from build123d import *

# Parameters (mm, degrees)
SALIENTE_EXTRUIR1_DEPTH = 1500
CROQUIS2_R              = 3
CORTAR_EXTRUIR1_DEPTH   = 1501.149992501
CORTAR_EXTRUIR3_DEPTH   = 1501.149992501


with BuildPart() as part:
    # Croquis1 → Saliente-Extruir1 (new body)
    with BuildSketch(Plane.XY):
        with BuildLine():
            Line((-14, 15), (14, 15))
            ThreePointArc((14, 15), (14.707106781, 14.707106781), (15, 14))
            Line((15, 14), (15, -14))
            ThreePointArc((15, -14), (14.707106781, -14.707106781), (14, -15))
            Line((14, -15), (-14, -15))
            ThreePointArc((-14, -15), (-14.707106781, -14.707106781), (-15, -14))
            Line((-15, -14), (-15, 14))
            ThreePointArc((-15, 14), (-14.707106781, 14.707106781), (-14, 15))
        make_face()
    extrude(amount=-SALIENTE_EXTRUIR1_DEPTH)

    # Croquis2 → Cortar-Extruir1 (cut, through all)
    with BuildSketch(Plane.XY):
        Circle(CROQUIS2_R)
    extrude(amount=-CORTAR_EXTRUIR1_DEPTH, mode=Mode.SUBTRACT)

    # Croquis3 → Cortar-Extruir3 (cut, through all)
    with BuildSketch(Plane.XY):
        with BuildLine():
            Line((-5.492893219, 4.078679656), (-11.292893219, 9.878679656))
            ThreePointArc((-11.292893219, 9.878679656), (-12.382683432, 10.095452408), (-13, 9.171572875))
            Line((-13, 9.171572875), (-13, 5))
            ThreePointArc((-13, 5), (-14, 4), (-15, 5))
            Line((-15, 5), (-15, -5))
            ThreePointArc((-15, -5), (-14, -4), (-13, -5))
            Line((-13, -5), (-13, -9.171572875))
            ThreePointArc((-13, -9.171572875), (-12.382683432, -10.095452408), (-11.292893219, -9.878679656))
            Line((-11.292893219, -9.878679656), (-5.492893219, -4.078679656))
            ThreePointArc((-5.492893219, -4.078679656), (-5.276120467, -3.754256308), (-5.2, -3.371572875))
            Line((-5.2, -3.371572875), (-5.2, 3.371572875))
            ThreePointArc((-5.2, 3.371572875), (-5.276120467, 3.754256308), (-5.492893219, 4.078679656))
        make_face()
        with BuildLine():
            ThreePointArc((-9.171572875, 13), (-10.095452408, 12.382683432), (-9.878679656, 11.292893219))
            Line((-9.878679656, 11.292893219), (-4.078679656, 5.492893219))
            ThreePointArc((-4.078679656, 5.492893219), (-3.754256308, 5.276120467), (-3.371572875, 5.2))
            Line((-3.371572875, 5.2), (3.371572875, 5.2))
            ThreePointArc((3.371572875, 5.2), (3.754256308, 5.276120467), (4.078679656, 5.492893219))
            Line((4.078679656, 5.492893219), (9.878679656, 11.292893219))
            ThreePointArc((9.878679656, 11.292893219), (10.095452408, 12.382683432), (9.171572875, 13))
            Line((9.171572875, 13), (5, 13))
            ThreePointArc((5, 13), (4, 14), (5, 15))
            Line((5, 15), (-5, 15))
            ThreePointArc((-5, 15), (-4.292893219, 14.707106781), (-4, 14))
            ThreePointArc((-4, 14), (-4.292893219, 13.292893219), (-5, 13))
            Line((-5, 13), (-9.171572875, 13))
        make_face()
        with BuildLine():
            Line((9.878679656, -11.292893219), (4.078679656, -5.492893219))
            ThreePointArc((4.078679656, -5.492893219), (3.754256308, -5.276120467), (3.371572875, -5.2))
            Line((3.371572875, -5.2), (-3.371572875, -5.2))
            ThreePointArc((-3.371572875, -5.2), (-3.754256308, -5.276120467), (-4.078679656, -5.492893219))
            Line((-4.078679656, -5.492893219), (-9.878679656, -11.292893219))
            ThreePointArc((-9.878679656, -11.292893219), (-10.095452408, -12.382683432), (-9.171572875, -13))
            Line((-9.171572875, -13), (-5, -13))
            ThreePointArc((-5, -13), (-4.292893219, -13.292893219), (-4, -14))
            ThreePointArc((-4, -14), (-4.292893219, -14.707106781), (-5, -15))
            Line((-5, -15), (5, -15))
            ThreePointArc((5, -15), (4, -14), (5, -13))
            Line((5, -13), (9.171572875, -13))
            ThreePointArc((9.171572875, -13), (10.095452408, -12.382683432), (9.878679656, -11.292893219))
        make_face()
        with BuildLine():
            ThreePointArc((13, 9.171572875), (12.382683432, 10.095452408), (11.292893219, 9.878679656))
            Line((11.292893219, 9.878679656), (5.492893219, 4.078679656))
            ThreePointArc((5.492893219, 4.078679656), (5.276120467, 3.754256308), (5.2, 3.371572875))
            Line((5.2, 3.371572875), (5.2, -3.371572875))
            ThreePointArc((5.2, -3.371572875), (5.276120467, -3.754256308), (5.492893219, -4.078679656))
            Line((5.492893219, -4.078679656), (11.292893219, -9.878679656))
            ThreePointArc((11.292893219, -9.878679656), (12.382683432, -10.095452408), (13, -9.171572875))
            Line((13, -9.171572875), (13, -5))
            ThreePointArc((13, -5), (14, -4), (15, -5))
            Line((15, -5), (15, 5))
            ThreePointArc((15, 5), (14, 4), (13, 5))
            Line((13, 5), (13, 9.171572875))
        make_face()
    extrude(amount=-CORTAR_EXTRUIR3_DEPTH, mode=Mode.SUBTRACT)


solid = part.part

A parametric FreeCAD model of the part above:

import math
import FreeCAD as App
import Part
import Sketcher

V = App.Vector
Q = App.Units.Quantity

doc = App.newDocument("Part")
body = doc.addObject("PartDesign::Body", "Body")

sketch1 = body.newObject("Sketcher::SketchObject", "Sketch")
sketch1.AttachmentSupport = (doc.getObject("XY_Plane"), [""])
sketch1.MapMode = "FlatFace"
sketch1.addGeometry([
    Part.LineSegment(V(14, 15, 0), V(-14, 15, 0)),
    Part.ArcOfCircle(Part.Circle(V(-14, 14, 0), V(0, 0, 1), 1), math.radians(90), math.radians(180)),
    Part.LineSegment(V(-15, 14, 0), V(-15, -14, 0)),
    Part.ArcOfCircle(Part.Circle(V(-14, -14, 0), V(0, 0, 1), 1), math.radians(-180), math.radians(-90)),
    Part.LineSegment(V(-14, -15, 0), V(14, -15, 0)),
    Part.ArcOfCircle(Part.Circle(V(14, -14, 0), V(0, 0, 1), 1), math.radians(-90), math.radians(0)),
    Part.LineSegment(V(15, -14, 0), V(15, 14, 0)),
    Part.ArcOfCircle(Part.Circle(V(14, 14, 0), V(0, 0, 1), 1), math.radians(0), math.radians(90)),
], False)
sketch1.addConstraint([
    Sketcher.Constraint("Tangent", 0, 2, 1, 1),
    Sketcher.Constraint("Tangent", 1, 2, 2, 1),
    Sketcher.Constraint("Tangent", 2, 2, 3, 1),
    Sketcher.Constraint("Tangent", 3, 2, 4, 1),
    Sketcher.Constraint("Tangent", 4, 2, 5, 1),
    Sketcher.Constraint("Tangent", 5, 2, 6, 1),
    Sketcher.Constraint("Tangent", 6, 2, 7, 1),
    Sketcher.Constraint("Tangent", 7, 2, 0, 1),
    Sketcher.Constraint("Horizontal", 0),
    Sketcher.Constraint("Vertical", 2),
    Sketcher.Constraint("Horizontal", 4),
    Sketcher.Constraint("Vertical", 6),
    Sketcher.Constraint("Equal", 1, 3),
    Sketcher.Constraint("Equal", 3, 5),
    Sketcher.Constraint("Equal", 5, 7),
    Sketcher.Constraint("Symmetric", 1, 3, 5, 3, -1, 1),
    Sketcher.Constraint("Equal", 4, 2),
    Sketcher.Constraint("Radius", 1, Q("1 mm")),
    Sketcher.Constraint("DistanceX", 0, 2, 0, 1, Q("28 mm")),
])
pad1 = body.newObject("PartDesign::Pad", "Pad")
pad1.Profile = sketch1
pad1.Length = 1500
pad1.Reversed = True

sketch2 = body.newObject("Sketcher::SketchObject", "Sketch001")
sketch2.AttachmentSupport = (doc.getObject("XY_Plane"), [""])
sketch2.MapMode = "FlatFace"
sketch2.addGeometry(Part.Circle(V(0, 0, 0), V(0, 0, 1), 3), False)
sketch2.addConstraint([
    Sketcher.Constraint("Coincident", 0, 3, -1, 1),
    Sketcher.Constraint("Diameter", 0, Q("6 mm")),
])
pocket1 = body.newObject("PartDesign::Pocket", "Pocket")
pocket1.Profile = sketch2
pocket1.Type = "ThroughAll"

sketch3 = body.newObject("Sketcher::SketchObject", "Sketch002")
sketch3.AttachmentSupport = (doc.getObject("XY_Plane"), [""])
sketch3.MapMode = "FlatFace"
sketch3.addGeometry([
    Part.LineSegment(V(-5.5, 4.1, 0), V(-11.3, 9.9, 0)),
    Part.ArcOfCircle(Part.Circle(V(-12, 9.2, 0), V(0, 0, 1), 1), math.radians(45), math.radians(180)),
    Part.LineSegment(V(-13, 9.2, 0), V(-13, 5, 0)),
    Part.ArcOfCircle(Part.Circle(V(-14, 5, 0), V(0, 0, 1), 1), math.radians(180), math.radians(360)),
    Part.LineSegment(V(-15, 5, 0), V(-15, -5, 0)),
    Part.ArcOfCircle(Part.Circle(V(-14, -5, 0), V(0, 0, 1), 1), math.radians(0), math.radians(180)),
    Part.LineSegment(V(-13, -5, 0), V(-13, -9.2, 0)),
    Part.ArcOfCircle(Part.Circle(V(-12, -9.2, 0), V(0, 0, 1), 1), math.radians(180), math.radians(315)),
    Part.LineSegment(V(-11.3, -9.9, 0), V(-5.5, -4.1, 0)),
    Part.ArcOfCircle(Part.Circle(V(-6.2, -3.4, 0), V(0, 0, 1), 1), math.radians(-45), math.radians(0)),
    Part.LineSegment(V(-5.2, -3.4, 0), V(-5.2, 3.4, 0)),
    Part.ArcOfCircle(Part.Circle(V(-6.2, 3.4, 0), V(0, 0, 1), 1), math.radians(0), math.radians(45)),
    Part.ArcOfCircle(Part.Circle(V(-9.2, 12, 0), V(0, 0, 1), 1), math.radians(90), math.radians(225)),
    Part.LineSegment(V(-9.9, 11.3, 0), V(-4.1, 5.5, 0)),
    Part.ArcOfCircle(Part.Circle(V(-3.4, 6.2, 0), V(0, 0, 1), 1), math.radians(-135), math.radians(-90)),
    Part.LineSegment(V(-3.4, 5.2, 0), V(3.4, 5.2, 0)),
    Part.ArcOfCircle(Part.Circle(V(3.4, 6.2, 0), V(0, 0, 1), 1), math.radians(-90), math.radians(-45)),
    Part.LineSegment(V(4.1, 5.5, 0), V(9.9, 11.3, 0)),
    Part.ArcOfCircle(Part.Circle(V(9.2, 12, 0), V(0, 0, 1), 1), math.radians(-45), math.radians(90)),
    Part.LineSegment(V(9.2, 13, 0), V(5, 13, 0)),
    Part.ArcOfCircle(Part.Circle(V(5, 14, 0), V(0, 0, 1), 1), math.radians(90), math.radians(270)),
    Part.LineSegment(V(5, 15, 0), V(-5, 15, 0)),
    Part.ArcOfCircle(Part.Circle(V(-5, 14, 0), V(0, 0, 1), 1), math.radians(0), math.radians(90)),
    Part.ArcOfCircle(Part.Circle(V(-5, 14, 0), V(0, 0, 1), 1), math.radians(-90), math.radians(0)),
    Part.LineSegment(V(-5, 13, 0), V(-9.2, 13, 0)),
    Part.LineSegment(V(9.9, -11.3, 0), V(4.1, -5.5, 0)),
    Part.ArcOfCircle(Part.Circle(V(3.4, -6.2, 0), V(0, 0, 1), 1), math.radians(45), math.radians(90)),
    Part.LineSegment(V(3.4, -5.2, 0), V(-3.4, -5.2, 0)),
    Part.ArcOfCircle(Part.Circle(V(-3.4, -6.2, 0), V(0, 0, 1), 1), math.radians(90), math.radians(135)),
    Part.LineSegment(V(-4.1, -5.5, 0), V(-9.9, -11.3, 0)),
    Part.ArcOfCircle(Part.Circle(V(-9.2, -12, 0), V(0, 0, 1), 1), math.radians(135), math.radians(270)),
    Part.LineSegment(V(-9.2, -13, 0), V(-5, -13, 0)),
    Part.ArcOfCircle(Part.Circle(V(-5, -14, 0), V(0, 0, 1), 1), math.radians(0), math.radians(90)),
    Part.ArcOfCircle(Part.Circle(V(-5, -14, 0), V(0, 0, 1), 1), math.radians(-90), math.radians(0)),
    Part.LineSegment(V(-5, -15, 0), V(5, -15, 0)),
    Part.ArcOfCircle(Part.Circle(V(5, -14, 0), V(0, 0, 1), 1), math.radians(90), math.radians(270)),
    Part.LineSegment(V(5, -13, 0), V(9.2, -13, 0)),
    Part.ArcOfCircle(Part.Circle(V(9.2, -12, 0), V(0, 0, 1), 1), math.radians(-90), math.radians(45)),
    Part.ArcOfCircle(Part.Circle(V(12, 9.2, 0), V(0, 0, 1), 1), math.radians(0), math.radians(135)),
    Part.LineSegment(V(11.3, 9.9, 0), V(5.5, 4.1, 0)),
    Part.ArcOfCircle(Part.Circle(V(6.2, 3.4, 0), V(0, 0, 1), 1), math.radians(135), math.radians(180)),
    Part.LineSegment(V(5.2, 3.4, 0), V(5.2, -3.4, 0)),
    Part.ArcOfCircle(Part.Circle(V(6.2, -3.4, 0), V(0, 0, 1), 1), math.radians(180), math.radians(225)),
    Part.LineSegment(V(5.5, -4.1, 0), V(11.3, -9.9, 0)),
    Part.ArcOfCircle(Part.Circle(V(12, -9.2, 0), V(0, 0, 1), 1), math.radians(-135), math.radians(0)),
    Part.LineSegment(V(13, -9.2, 0), V(13, -5, 0)),
    Part.ArcOfCircle(Part.Circle(V(14, -5, 0), V(0, 0, 1), 1), math.radians(0), math.radians(180)),
    Part.LineSegment(V(15, -5, 0), V(15, 5, 0)),
    Part.ArcOfCircle(Part.Circle(V(14, 5, 0), V(0, 0, 1), 1), math.radians(180), math.radians(360)),
    Part.LineSegment(V(13, 5, 0), V(13, 9.2, 0)),
], False)
sketch3.addConstraint([
    Sketcher.Constraint("Tangent", 0, 2, 1, 1),
    Sketcher.Constraint("Tangent", 1, 2, 2, 1),
    Sketcher.Constraint("Tangent", 2, 2, 3, 2),
    Sketcher.Constraint("Tangent", 3, 1, 4, 1),
    Sketcher.Constraint("Tangent", 4, 2, 5, 2),
    Sketcher.Constraint("Tangent", 5, 1, 6, 1),
    Sketcher.Constraint("Tangent", 6, 2, 7, 1),
    Sketcher.Constraint("Tangent", 7, 2, 8, 1),
    Sketcher.Constraint("Tangent", 8, 2, 9, 1),
    Sketcher.Constraint("Tangent", 9, 2, 10, 1),
    Sketcher.Constraint("Tangent", 10, 2, 11, 1),
    Sketcher.Constraint("Tangent", 11, 2, 0, 1),
    Sketcher.Constraint("Tangent", 12, 2, 13, 1),
    Sketcher.Constraint("Tangent", 13, 2, 14, 1),
    Sketcher.Constraint("Tangent", 14, 2, 15, 1),
    Sketcher.Constraint("Tangent", 15, 2, 16, 1),
    Sketcher.Constraint("Tangent", 16, 2, 17, 1),
    Sketcher.Constraint("Tangent", 17, 2, 18, 1),
    Sketcher.Constraint("Tangent", 18, 2, 19, 1),
    Sketcher.Constraint("Tangent", 19, 2, 20, 2),
    Sketcher.Constraint("Tangent", 20, 1, 21, 1),
    Sketcher.Constraint("Tangent", 21, 2, 22, 2),
    Sketcher.Constraint("Tangent", 22, 1, 23, 2),
    Sketcher.Constraint("Tangent", 23, 1, 24, 1),
    Sketcher.Constraint("Tangent", 24, 2, 12, 1),
    Sketcher.Constraint("Tangent", 25, 2, 26, 1),
    Sketcher.Constraint("Tangent", 26, 2, 27, 1),
    Sketcher.Constraint("Tangent", 27, 2, 28, 1),
    Sketcher.Constraint("Tangent", 28, 2, 29, 1),
    Sketcher.Constraint("Tangent", 29, 2, 30, 1),
    Sketcher.Constraint("Tangent", 30, 2, 31, 1),
    Sketcher.Constraint("Tangent", 31, 2, 32, 2),
    Sketcher.Constraint("Tangent", 32, 1, 33, 2),
    Sketcher.Constraint("Tangent", 33, 1, 34, 1),
    Sketcher.Constraint("Tangent", 34, 2, 35, 2),
    Sketcher.Constraint("Tangent", 35, 1, 36, 1),
    Sketcher.Constraint("Tangent", 36, 2, 37, 1),
    Sketcher.Constraint("Tangent", 37, 2, 25, 1),
    Sketcher.Constraint("Tangent", 38, 2, 39, 1),
    Sketcher.Constraint("Tangent", 39, 2, 40, 1),
    Sketcher.Constraint("Tangent", 40, 2, 41, 1),
    Sketcher.Constraint("Tangent", 41, 2, 42, 1),
    Sketcher.Constraint("Tangent", 42, 2, 43, 1),
    Sketcher.Constraint("Tangent", 43, 2, 44, 1),
    Sketcher.Constraint("Tangent", 44, 2, 45, 1),
    Sketcher.Constraint("Tangent", 45, 2, 46, 2),
    Sketcher.Constraint("Tangent", 46, 1, 47, 1),
    Sketcher.Constraint("Tangent", 47, 2, 48, 2),
    Sketcher.Constraint("Tangent", 48, 1, 49, 1),
    Sketcher.Constraint("Tangent", 49, 2, 38, 1),
    Sketcher.Constraint("Vertical", 2),
    Sketcher.Constraint("Vertical", 4),
    Sketcher.Constraint("Vertical", 6),
    Sketcher.Constraint("Vertical", 10),
    Sketcher.Constraint("Horizontal", 15),
    Sketcher.Constraint("Horizontal", 19),
    Sketcher.Constraint("Horizontal", 21),
    Sketcher.Constraint("Horizontal", 24),
    Sketcher.Constraint("Horizontal", 27),
    Sketcher.Constraint("Horizontal", 31),
    Sketcher.Constraint("Horizontal", 34),
    Sketcher.Constraint("Horizontal", 36),
    Sketcher.Constraint("Vertical", 41),
    Sketcher.Constraint("Vertical", 45),
    Sketcher.Constraint("Vertical", 47),
    Sketcher.Constraint("Vertical", 49),
    Sketcher.Constraint("Equal", 1, 3),
    Sketcher.Constraint("Equal", 3, 5),
    Sketcher.Constraint("Equal", 5, 7),
    Sketcher.Constraint("Equal", 7, 9),
    Sketcher.Constraint("Equal", 9, 11),
    Sketcher.Constraint("Equal", 11, 12),
    Sketcher.Constraint("Equal", 12, 14),
    Sketcher.Constraint("Equal", 14, 16),
    Sketcher.Constraint("Equal", 16, 18),
    Sketcher.Constraint("Equal", 18, 20),
    Sketcher.Constraint("Equal", 20, 22),
    Sketcher.Constraint("Equal", 22, 23),
    Sketcher.Constraint("Equal", 23, 26),
    Sketcher.Constraint("Equal", 26, 28),
    Sketcher.Constraint("Equal", 28, 30),
    Sketcher.Constraint("Equal", 30, 32),
    Sketcher.Constraint("Equal", 32, 33),
    Sketcher.Constraint("Equal", 33, 35),
    Sketcher.Constraint("Equal", 35, 37),
    Sketcher.Constraint("Equal", 37, 38),
    Sketcher.Constraint("Equal", 38, 40),
    Sketcher.Constraint("Equal", 40, 42),
    Sketcher.Constraint("Equal", 42, 44),
    Sketcher.Constraint("Equal", 44, 46),
    Sketcher.Constraint("Equal", 46, 48),
    Sketcher.Constraint("Symmetric", 14, 3, 26, 3, -1, 1),
    Sketcher.Constraint("Symmetric", 18, 3, 30, 3, -1, 1),
    Sketcher.Constraint("Symmetric", 7, 3, 38, 3, -1, 1),
    Sketcher.Constraint("Symmetric", 9, 3, 40, 3, -1, 1),
    Sketcher.Constraint("Symmetric", 11, 2, 42, 2, -1, 1),
    Sketcher.Constraint("Symmetric", 13, 2, 16, 2, -2),
    Sketcher.Constraint("Symmetric", 25, 2, 28, 2, -2),
    Sketcher.Constraint("Symmetric", 0, 2, 38, 2, -2),
    Sketcher.Constraint("Symmetric", 22, 1, 32, 1, -1),
    Sketcher.Constraint("Perpendicular", 0, 8),
    Sketcher.Constraint("Perpendicular", 8, 13),
    Sketcher.Constraint("Horizontal", 5, 3, 46, 3),
    Sketcher.Constraint("Horizontal", 3, 3, 48, 3),
    Sketcher.Constraint("Horizontal", 23, 3, 22, 1),
    Sketcher.Constraint("Vertical", 20, 3, 35, 3),
    Sketcher.Constraint("Equal", 19, 24),
    Sketcher.Constraint("Equal", 36, 2),
    Sketcher.Constraint("Equal", 34, 4),
    Sketcher.Constraint("Equal", 2, 6),
    Sketcher.Constraint("Equal", 27, 10),
    Sketcher.Constraint("Radius", 1, Q("1 mm")),
    Sketcher.Constraint("DistanceX", 21, 2, 21, 1, Q("10 mm")),
    Sketcher.Constraint("DistanceX", 1, 3, -1, 1, Q("12 mm")),
    Sketcher.Constraint("DistanceY", -1, 1, 12, 3, Q("12 mm")),
    Sketcher.Constraint("DistanceX", 9, 3, -1, 1, Q("6.2 mm")),
    Sketcher.Constraint("DistanceX", 15, 1, 15, 2, Q("6.743146 mm")),
])
pocket2 = body.newObject("PartDesign::Pocket", "Pocket001")
pocket2.Profile = sketch3
pocket2.Type = "ThroughAll"

doc.recompute()
